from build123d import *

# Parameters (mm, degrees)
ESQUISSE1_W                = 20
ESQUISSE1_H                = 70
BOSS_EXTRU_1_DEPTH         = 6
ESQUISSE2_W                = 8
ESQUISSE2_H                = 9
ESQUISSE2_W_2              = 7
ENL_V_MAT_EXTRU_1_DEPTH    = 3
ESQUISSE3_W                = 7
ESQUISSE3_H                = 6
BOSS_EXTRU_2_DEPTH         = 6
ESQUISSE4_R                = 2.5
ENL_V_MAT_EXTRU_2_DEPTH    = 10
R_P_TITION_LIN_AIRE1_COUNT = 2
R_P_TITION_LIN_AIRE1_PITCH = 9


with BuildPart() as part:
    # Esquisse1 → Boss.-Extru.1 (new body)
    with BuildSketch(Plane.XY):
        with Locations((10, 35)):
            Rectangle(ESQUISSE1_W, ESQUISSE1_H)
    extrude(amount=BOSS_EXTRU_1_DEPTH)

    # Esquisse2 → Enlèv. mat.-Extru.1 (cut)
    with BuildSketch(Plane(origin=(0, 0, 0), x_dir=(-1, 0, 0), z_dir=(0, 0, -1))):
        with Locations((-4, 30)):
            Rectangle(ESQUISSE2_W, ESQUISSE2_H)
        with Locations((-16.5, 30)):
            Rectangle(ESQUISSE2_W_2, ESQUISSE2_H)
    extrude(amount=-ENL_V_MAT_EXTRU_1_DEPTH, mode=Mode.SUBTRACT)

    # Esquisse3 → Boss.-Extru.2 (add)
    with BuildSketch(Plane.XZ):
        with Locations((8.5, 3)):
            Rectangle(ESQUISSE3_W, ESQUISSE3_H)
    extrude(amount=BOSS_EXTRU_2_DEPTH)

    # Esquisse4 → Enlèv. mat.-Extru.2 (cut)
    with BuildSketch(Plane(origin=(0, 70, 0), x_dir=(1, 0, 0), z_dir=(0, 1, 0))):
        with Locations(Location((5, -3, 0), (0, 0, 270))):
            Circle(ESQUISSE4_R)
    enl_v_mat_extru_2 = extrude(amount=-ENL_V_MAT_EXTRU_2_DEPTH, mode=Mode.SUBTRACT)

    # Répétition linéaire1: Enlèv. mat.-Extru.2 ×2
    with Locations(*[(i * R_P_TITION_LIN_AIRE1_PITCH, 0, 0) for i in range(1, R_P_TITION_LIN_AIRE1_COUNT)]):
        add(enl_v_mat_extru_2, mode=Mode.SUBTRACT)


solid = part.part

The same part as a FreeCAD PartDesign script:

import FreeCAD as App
import Part
import Sketcher
from FreeCAD import Vector
Q = App.Units.Quantity


def add_polygon(sketch, points):
    """Adds a closed chain of lines whose ends are joined by coincident constraints."""
    first, n = sketch.GeometryCount, len(points)
    for a, b in zip(points, points[1:] + points[:1]):
        sketch.addGeometry(Part.LineSegment(App.Vector(*a, 0), App.Vector(*b, 0)), False)
    for i in range(n):
        sketch.addConstraint(Sketcher.Constraint("Coincident", first + i, 2, first + (i + 1) % n, 1))

doc = App.newDocument("Part")
body = doc.addObject("PartDesign::Body", "Body")

sketch1 = doc.addObject("Sketcher::SketchObject", "Sketch")
body.addObject(sketch1)
sketch1.AttachmentSupport = (doc.XY_Plane, [""])
sketch1.MapMode = "FlatFace"
add_polygon(sketch1, [(0, 70), (0, 0), (20, 0), (20, 70)])
sketch1.addConstraint([
    Sketcher.Constraint("Vertical", 0),
    Sketcher.Constraint("Horizontal", 1),
    Sketcher.Constraint("Vertical", 2),
    Sketcher.Constraint("Horizontal", 3),
    Sketcher.Constraint("Coincident", 0, 2, -1, 1),
    Sketcher.Constraint("DistanceX", 1, 1, 1, 2, Q("20 mm")),
    Sketcher.Constraint("DistanceY", 0, 2, 0, 1, Q("70 mm")),
])
pad1 = doc.addObject("PartDesign::Pad", "Pad")
body.addObject(pad1)
pad1.Profile = sketch1
pad1.Length = 6

sketch2 = doc.addObject("Sketcher::SketchObject", "Sketch001")
body.addObject(sketch2)
sketch2.AttachmentSupport = (doc.XY_Plane, [""])
sketch2.MapMode = "FlatFace"
add_polygon(sketch2, [(8, 34.5), (8, 25.5), (0, 25.5), (0, 34.5)])
add_polygon(sketch2, [(20, 34.5), (20, 25.5), (13, 25.5), (13, 34.5)])
sketch2.addConstraint([
    Sketcher.Constraint("Vertical", 0),
    Sketcher.Constraint("Horizontal", 1),
    Sketcher.Constraint("Vertical", 2),
    Sketcher.Constraint("Horizontal", 3),
    Sketcher.Constraint("Vertical", 4),
    Sketcher.Constraint("Horizontal", 5),
    Sketcher.Constraint("Vertical", 6),
    Sketcher.Constraint("Horizontal", 7),
    Sketcher.Constraint("PointOnObject", 1, 2, -2),
    Sketcher.Constraint("Horizontal", 1, 2, 4, 2),
    Sketcher.Constraint("Horizontal", 3, 2, 6, 2),
    Sketcher.Constraint("DistanceX", 1, 2, 1, 1, Q("8 mm")),
    Sketcher.Constraint("DistanceX", 5, 2, 5, 1, Q("7 mm")),
    Sketcher.Constraint("DistanceY", 0, 2, 0, 1, Q("9 mm")),
    Sketcher.Constraint("DistanceX", -1, 1, 4, 2, Q("20 mm")),
    Sketcher.Constraint("DistanceY", -1, 1, 0, 2, Q("25.5 mm")),
])
pocket1 = doc.addObject("PartDesign::Pocket", "Pocket")
body.addObject(pocket1)
pocket1.Profile = sketch2
pocket1.Length = 3
pocket1.Reversed = True

sketch3 = doc.addObject("Sketcher::SketchObject", "Sketch002")
body.addObject(sketch3)
sketch3.AttachmentSupport = (doc.XZ_Plane, [""])
sketch3.MapMode = "FlatFace"
add_polygon(sketch3, [(5, 6), (5, 0), (12, 0), (12, 6)])
sketch3.addConstraint([
    Sketcher.Constraint("Vertical", 0),
    Sketcher.Constraint("Horizontal", 1),
    Sketcher.Constraint("Vertical", 2),
    Sketcher.Constraint("Horizontal", 3),
    Sketcher.Constraint("PointOnObject", 0, 2, -1),
    Sketcher.Constraint("DistanceX", 1, 1, 1, 2, Q("7 mm")),
    Sketcher.Constraint("DistanceY", 0, 2, 0, 1, Q("6 mm")),
    Sketcher.Constraint("DistanceX", -1, 1, 0, 2, Q("5 mm")),
])
pad2 = doc.addObject("PartDesign::Pad", "Pad001")
body.addObject(pad2)
pad2.Profile = sketch3
pad2.Length = 6

sketch4 = doc.addObject("Sketcher::SketchObject", "Sketch003")
body.addObject(sketch4)
sketch4.AttachmentSupport = (doc.XZ_Plane, [""])
sketch4.MapMode = "FlatFace"
sketch4.AttachmentOffset = App.Placement(Vector(0, 0, -70), App.Rotation())
sketch4.addGeometry(Part.Circle(Vector(5, 3, 0), Vector(0, 0, 1), 2.5), False)
sketch4.addConstraint([
    Sketcher.Constraint("Diameter", 0, Q("5 mm")),
    Sketcher.Constraint("DistanceX", -1, 1, 0, 3, Q("5 mm")),
    Sketcher.Constraint("DistanceY", -1, 1, 0, 3, Q("3 mm")),
])
pocket2 = doc.addObject("PartDesign::Pocket", "Pocket001")
body.addObject(pocket2)
pocket2.Profile = sketch4
pocket2.Length = 10
pocket2.Reversed = True
doc.recompute()

linearpattern = doc.addObject("PartDesign::LinearPattern", "LinearPattern")
body.addObject(linearpattern)
linearpattern.Originals = [pocket2]
linearpattern.Direction = (doc.X_Axis, [""])
linearpattern.Mode = "offset"
linearpattern.Offset = 9
linearpattern.Occurrences = 2
body.Tip = linearpattern

doc.recompute()
